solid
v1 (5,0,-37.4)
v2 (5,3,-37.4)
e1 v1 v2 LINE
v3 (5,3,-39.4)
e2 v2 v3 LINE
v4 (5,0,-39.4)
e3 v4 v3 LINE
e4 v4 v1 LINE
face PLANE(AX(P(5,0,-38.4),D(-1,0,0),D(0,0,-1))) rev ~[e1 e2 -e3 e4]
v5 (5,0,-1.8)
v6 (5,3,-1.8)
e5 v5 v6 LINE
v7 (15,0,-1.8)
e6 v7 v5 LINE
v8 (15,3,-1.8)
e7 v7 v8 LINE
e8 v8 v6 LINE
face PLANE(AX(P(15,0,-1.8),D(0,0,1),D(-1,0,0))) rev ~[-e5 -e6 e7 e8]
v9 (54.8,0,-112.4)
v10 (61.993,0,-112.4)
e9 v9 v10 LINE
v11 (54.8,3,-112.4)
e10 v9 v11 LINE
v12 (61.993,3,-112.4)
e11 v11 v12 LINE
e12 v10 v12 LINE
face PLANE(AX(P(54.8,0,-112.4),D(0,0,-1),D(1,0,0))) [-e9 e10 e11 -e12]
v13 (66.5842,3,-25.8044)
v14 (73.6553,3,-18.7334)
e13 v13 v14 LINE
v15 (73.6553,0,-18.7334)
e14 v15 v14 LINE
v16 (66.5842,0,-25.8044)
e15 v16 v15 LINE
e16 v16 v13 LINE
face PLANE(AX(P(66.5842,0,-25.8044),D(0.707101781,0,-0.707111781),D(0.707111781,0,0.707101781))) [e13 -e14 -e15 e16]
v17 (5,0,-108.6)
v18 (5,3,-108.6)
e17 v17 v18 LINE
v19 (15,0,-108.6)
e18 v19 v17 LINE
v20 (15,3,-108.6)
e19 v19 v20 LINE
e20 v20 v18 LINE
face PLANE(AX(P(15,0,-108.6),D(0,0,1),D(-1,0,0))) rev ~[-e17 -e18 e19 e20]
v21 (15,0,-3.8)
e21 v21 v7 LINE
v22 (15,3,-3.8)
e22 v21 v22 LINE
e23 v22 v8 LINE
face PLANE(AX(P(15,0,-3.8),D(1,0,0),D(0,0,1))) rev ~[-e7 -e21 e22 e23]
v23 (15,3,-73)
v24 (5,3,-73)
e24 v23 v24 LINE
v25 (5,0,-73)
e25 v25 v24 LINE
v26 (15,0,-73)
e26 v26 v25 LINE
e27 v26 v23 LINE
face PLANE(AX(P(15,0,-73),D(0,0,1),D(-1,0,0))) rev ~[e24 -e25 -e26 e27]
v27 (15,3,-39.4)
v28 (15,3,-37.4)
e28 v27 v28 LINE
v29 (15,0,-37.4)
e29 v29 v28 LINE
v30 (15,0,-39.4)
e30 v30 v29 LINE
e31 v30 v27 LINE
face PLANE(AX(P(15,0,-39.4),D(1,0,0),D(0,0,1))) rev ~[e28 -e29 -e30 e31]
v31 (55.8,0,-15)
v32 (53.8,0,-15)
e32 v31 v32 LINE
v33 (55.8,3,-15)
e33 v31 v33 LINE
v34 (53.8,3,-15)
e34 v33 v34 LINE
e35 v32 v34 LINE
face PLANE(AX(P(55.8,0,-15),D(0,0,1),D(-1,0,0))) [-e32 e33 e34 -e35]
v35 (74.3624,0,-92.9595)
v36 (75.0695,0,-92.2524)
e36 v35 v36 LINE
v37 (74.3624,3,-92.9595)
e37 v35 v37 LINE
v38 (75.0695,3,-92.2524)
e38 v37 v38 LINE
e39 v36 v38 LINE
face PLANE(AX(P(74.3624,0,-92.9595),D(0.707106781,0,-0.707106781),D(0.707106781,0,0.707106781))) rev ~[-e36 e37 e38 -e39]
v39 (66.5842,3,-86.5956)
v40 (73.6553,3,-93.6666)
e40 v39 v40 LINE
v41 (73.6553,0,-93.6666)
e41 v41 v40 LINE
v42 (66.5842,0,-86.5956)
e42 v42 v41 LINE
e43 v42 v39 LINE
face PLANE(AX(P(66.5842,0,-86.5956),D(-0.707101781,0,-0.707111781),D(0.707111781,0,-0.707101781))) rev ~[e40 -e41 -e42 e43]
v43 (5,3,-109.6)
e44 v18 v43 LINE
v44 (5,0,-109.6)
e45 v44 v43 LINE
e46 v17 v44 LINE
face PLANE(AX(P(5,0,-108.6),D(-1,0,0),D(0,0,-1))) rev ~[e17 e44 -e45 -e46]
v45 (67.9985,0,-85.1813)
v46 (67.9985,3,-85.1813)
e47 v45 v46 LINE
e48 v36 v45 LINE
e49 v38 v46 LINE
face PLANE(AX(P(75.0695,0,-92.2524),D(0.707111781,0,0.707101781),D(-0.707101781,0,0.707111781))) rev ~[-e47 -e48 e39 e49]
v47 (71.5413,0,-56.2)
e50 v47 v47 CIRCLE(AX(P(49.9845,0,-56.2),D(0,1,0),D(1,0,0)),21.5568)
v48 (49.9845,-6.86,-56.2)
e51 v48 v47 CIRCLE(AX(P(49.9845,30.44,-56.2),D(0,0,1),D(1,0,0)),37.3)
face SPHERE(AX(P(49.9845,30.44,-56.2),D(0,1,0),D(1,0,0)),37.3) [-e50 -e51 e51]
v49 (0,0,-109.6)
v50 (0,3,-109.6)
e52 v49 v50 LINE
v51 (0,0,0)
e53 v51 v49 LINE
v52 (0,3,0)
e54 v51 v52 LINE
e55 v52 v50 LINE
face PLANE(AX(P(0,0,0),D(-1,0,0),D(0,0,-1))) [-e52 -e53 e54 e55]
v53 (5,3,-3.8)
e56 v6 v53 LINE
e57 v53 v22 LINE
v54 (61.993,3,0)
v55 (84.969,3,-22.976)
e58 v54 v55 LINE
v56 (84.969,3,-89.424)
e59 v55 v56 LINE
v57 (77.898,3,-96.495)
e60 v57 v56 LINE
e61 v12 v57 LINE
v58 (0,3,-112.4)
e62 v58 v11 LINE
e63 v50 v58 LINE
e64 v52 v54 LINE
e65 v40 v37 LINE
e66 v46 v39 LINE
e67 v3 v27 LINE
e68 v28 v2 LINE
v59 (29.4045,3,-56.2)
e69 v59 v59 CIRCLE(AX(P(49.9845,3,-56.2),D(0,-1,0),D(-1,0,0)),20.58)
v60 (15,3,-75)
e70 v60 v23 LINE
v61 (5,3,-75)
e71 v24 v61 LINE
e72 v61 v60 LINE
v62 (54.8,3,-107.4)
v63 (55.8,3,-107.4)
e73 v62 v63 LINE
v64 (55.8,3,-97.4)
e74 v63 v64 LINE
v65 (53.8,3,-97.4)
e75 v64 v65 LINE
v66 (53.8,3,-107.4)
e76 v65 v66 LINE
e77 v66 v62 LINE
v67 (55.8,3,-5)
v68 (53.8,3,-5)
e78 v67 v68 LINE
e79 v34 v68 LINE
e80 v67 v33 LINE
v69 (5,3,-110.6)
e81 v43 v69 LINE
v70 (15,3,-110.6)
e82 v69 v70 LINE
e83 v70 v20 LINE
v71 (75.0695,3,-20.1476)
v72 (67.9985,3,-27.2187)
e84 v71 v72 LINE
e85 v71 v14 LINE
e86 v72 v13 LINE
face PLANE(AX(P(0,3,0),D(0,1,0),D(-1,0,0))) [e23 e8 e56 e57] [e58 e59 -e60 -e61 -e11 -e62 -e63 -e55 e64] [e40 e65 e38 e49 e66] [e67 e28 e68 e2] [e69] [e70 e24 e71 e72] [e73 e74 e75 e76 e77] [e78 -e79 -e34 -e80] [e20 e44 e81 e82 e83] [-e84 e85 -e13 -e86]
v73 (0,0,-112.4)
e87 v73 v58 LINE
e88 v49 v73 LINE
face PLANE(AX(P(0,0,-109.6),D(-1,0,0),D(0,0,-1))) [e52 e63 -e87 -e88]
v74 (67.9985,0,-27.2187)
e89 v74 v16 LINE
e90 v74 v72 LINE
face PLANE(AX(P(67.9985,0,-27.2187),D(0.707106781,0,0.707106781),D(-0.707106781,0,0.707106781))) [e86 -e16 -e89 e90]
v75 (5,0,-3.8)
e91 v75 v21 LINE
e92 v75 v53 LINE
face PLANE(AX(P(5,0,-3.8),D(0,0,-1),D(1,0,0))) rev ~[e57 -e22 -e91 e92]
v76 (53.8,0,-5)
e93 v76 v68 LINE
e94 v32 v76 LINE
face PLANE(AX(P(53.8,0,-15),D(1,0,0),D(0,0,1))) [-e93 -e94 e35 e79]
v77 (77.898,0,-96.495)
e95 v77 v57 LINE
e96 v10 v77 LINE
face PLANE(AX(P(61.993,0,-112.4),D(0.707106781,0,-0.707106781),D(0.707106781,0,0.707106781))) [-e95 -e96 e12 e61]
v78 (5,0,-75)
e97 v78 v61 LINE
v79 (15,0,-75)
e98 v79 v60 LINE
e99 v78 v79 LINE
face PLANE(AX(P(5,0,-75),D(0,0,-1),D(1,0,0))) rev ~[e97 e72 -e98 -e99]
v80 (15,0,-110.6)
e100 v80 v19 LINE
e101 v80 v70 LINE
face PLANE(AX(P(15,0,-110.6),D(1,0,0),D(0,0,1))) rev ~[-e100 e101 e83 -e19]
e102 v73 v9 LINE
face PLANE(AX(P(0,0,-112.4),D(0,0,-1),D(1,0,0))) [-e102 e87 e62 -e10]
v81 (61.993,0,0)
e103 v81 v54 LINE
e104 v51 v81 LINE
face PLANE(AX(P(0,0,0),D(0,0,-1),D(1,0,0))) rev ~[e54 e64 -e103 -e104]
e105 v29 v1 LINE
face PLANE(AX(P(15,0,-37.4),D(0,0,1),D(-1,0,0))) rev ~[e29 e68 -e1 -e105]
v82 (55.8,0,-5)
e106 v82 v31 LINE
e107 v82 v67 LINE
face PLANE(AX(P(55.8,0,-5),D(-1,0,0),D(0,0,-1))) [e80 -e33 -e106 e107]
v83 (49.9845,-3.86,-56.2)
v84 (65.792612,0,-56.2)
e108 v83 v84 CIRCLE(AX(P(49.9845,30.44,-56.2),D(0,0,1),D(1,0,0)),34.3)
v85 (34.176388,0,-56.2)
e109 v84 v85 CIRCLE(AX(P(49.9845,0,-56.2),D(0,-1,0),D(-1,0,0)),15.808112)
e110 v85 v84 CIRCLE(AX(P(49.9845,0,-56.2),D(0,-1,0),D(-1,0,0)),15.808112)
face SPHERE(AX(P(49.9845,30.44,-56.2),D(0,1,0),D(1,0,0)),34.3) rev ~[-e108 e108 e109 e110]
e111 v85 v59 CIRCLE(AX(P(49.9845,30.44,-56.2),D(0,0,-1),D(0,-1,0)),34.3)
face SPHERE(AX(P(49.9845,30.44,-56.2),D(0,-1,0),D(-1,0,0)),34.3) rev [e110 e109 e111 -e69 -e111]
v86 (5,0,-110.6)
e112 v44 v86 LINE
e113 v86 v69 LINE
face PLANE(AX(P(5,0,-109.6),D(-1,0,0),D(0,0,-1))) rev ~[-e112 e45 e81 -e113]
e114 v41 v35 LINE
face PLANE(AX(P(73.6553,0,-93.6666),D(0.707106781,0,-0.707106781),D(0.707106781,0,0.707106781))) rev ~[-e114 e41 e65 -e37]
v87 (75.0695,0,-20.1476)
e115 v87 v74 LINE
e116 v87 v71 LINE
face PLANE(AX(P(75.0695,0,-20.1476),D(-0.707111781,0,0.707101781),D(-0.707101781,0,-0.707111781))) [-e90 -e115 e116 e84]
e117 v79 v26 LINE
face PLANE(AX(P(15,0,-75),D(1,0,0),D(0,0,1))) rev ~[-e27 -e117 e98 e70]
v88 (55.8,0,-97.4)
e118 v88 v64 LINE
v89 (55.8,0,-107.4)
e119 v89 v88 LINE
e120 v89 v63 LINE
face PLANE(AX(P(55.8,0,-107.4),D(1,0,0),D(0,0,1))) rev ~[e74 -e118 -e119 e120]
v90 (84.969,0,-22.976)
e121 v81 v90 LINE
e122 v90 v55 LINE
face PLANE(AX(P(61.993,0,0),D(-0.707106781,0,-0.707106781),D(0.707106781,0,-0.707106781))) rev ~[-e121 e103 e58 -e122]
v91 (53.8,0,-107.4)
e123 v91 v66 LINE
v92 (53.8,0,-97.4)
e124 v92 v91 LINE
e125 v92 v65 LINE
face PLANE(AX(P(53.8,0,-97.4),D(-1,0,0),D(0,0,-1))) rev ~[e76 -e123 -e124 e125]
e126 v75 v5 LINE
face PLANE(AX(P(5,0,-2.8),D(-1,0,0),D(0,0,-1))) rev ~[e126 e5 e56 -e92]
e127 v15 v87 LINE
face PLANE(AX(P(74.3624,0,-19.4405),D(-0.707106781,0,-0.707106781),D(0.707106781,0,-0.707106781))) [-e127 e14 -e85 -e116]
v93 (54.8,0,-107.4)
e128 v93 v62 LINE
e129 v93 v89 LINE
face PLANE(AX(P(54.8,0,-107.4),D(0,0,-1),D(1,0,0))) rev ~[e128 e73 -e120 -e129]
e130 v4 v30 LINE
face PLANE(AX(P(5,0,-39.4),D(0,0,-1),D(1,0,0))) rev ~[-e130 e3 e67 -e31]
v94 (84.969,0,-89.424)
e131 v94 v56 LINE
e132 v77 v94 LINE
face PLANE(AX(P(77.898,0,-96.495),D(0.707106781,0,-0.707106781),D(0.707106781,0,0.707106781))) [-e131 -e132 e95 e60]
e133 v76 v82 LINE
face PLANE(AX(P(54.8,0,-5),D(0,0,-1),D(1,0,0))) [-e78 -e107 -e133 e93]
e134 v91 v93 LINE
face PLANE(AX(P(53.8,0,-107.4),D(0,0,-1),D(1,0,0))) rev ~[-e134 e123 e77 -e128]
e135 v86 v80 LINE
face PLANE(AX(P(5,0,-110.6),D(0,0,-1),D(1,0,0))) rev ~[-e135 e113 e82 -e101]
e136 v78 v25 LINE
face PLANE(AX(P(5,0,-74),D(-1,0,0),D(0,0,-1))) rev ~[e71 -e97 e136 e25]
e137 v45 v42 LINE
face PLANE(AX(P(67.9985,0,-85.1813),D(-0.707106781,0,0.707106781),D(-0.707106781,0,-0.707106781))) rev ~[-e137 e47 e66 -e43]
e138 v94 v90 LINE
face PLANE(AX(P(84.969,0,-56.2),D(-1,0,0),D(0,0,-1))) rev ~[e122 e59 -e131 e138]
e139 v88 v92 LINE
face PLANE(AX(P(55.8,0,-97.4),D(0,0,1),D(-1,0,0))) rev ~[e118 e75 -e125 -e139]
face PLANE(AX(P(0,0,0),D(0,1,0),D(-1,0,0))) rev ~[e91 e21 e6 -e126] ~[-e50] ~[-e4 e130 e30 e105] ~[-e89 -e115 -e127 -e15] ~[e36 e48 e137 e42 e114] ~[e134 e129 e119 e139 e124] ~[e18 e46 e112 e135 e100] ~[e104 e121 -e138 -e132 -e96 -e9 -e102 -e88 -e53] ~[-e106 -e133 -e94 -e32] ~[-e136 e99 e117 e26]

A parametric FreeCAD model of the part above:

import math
import FreeCAD as App
import Part
import Sketcher

V = App.Vector


def add_polygon(sketch, points):
    """Adds a closed chain of lines whose ends are joined by coincident constraints."""
    first, n = sketch.GeometryCount, len(points)
    for a, b in zip(points, points[1:] + points[:1]):
        sketch.addGeometry(Part.LineSegment(App.Vector(*a, 0), App.Vector(*b, 0)), False)
    for i in range(n):
        sketch.addConstraint(Sketcher.Constraint("Coincident", first + i, 2, first + (i + 1) % n, 1))

doc = App.newDocument("Part")
body = doc.addObject("PartDesign::Body", "Body")

sketch1 = doc.addObject("Sketcher::SketchObject", "Sketch")
body.addObject(sketch1)
sketch1.AttachmentSupport = (doc.XZ_Plane, [""])
sketch1.MapMode = "FlatFace"
add_polygon(sketch1, [(0, -109.6), (0, 0), (62, 0), (85, -23), (85, -89.4), (77.9, -96.5), (62, -112.4), (54.8, -112.4), (0, -112.4)])
add_polygon(sketch1, [(73.7, -93.7), (74.4, -93), (75.1, -92.3), (68, -85.2), (66.6, -86.6)])
add_polygon(sketch1, [(53.8, -107.4), (54.8, -107.4), (55.8, -107.4), (55.8, -97.4), (53.8, -97.4)])
add_polygon(sketch1, [(5, -108.6), (5, -109.6), (5, -110.6), (15, -110.6), (15, -108.6)])
add_polygon(sketch1, [(5, -75), (15, -75), (15, -73), (5, -73)])
add_polygon(sketch1, [(75.1, -20.1), (73.7, -18.7), (66.6, -25.8), (68, -27.2)])
add_polygon(sketch1, [(55.8, -5), (53.8, -5), (53.8, -15), (55.8, -15)])
add_polygon(sketch1, [(5, -39.4), (15, -39.4), (15, -37.4), (5, -37.4)])
add_polygon(sketch1, [(5, -3.8), (15, -3.8), (15, -1.8), (5, -1.8)])
sketch1.addConstraint(Sketcher.Constraint("Vertical", 0))
sketch1.addConstraint(Sketcher.Constraint("Horizontal", 1))
sketch1.addConstraint(Sketcher.Constraint("Vertical", 3))
sketch1.addConstraint(Sketcher.Constraint("Horizontal", 6))
sketch1.addConstraint(Sketcher.Constraint("Horizontal", 7))
sketch1.addConstraint(Sketcher.Constraint("Vertical", 8))
sketch1.addConstraint(Sketcher.Constraint("Horizontal", 14))
sketch1.addConstraint(Sketcher.Constraint("Horizontal", 15))
sketch1.addConstraint(Sketcher.Constraint("Vertical", 16))
sketch1.addConstraint(Sketcher.Constraint("Horizontal", 17))
sketch1.addConstraint(Sketcher.Constraint("Vertical", 18))
sketch1.addConstraint(Sketcher.Constraint("Vertical", 19))
sketch1.addConstraint(Sketcher.Constraint("Vertical", 20))
sketch1.addConstraint(Sketcher.Constraint("Horizontal", 21))
sketch1.addConstraint(Sketcher.Constraint("Vertical", 22))
sketch1.addConstraint(Sketcher.Constraint("Horizontal", 23))
sketch1.addConstraint(Sketcher.Constraint("Horizontal", 24))
sketch1.addConstraint(Sketcher.Constraint("Vertical", 25))
sketch1.addConstraint(Sketcher.Constraint("Horizontal", 26))
sketch1.addConstraint(Sketcher.Constraint("Vertical", 27))
sketch1.addConstraint(Sketcher.Constraint("Horizontal", 32))
sketch1.addConstraint(Sketcher.Constraint("Vertical", 33))
sketch1.addConstraint(Sketcher.Constraint("Horizontal", 34))
sketch1.addConstraint(Sketcher.Constraint("Vertical", 35))
sketch1.addConstraint(Sketcher.Constraint("Horizontal", 36))
sketch1.addConstraint(Sketcher.Constraint("Vertical", 37))
sketch1.addConstraint(Sketcher.Constraint("Horizontal", 38))
sketch1.addConstraint(Sketcher.Constraint("Vertical", 39))
sketch1.addConstraint(Sketcher.Constraint("Horizontal", 40))
sketch1.addConstraint(Sketcher.Constraint("Vertical", 41))
sketch1.addConstraint(Sketcher.Constraint("Horizontal", 42))
sketch1.addConstraint(Sketcher.Constraint("Vertical", 43))
sketch1.addConstraint(Sketcher.Constraint("Coincident", 0, 2, -1, 1))
sketch1.addConstraint(Sketcher.Constraint("Perpendicular", 2, 4))
sketch1.addConstraint(Sketcher.Constraint("Parallel", 4, 5))
sketch1.addConstraint(Sketcher.Constraint("Parallel", 5, 9))
sketch1.addConstraint(Sketcher.Constraint("Parallel", 9, 10))
sketch1.addConstraint(Sketcher.Constraint("Perpendicular", 10, 11))
sketch1.addConstraint(Sketcher.Constraint("Perpendicular", 11, 12))
sketch1.addConstraint(Sketcher.Constraint("Perpendicular", 12, 13))
sketch1.addConstraint(Sketcher.Constraint("Parallel", 13, 28))
sketch1.addConstraint(Sketcher.Constraint("Perpendicular", 28, 29))
sketch1.addConstraint(Sketcher.Constraint("Perpendicular", 29, 30))
sketch1.addConstraint(Sketcher.Constraint("Perpendicular", 30, 31))
sketch1.addConstraint(Sketcher.Constraint("Horizontal", 8, 2, 19, 2))
sketch1.addConstraint(Sketcher.Constraint("Vertical", 1, 2, 5, 2))
sketch1.addConstraint(Sketcher.Constraint("Vertical", 6, 2, 14, 2))
sketch1.addConstraint(Sketcher.Constraint("Vertical", 22, 2, 24, 2))
sketch1.addConstraint(Sketcher.Constraint("Vertical", 23, 2, 26, 2))
sketch1.addConstraint(Sketcher.Constraint("Vertical", 13, 2, 28, 2))
sketch1.addConstraint(Sketcher.Constraint("Vertical", 12, 2, 29, 2))
sketch1.addConstraint(Sketcher.Constraint("Vertical", 11, 2, 30, 2))
sketch1.addConstraint(Sketcher.Constraint("Vertical", 18, 2, 32, 2))
sketch1.addConstraint(Sketcher.Constraint("Vertical", 16, 2, 34, 2))
sketch1.addConstraint(Sketcher.Constraint("Vertical", 25, 2, 36, 2))
sketch1.addConstraint(Sketcher.Constraint("Vertical", 27, 2, 38, 2))
sketch1.addConstraint(Sketcher.Constraint("Vertical", 37, 2, 40, 2))
sketch1.addConstraint(Sketcher.Constraint("Vertical", 39, 2, 42, 2))
sketch1.addConstraint(Sketcher.Constraint("Equal", 14, 15))
sketch1.addConstraint(Sketcher.Constraint("Equal", 42, 16))
sketch1.addConstraint(Sketcher.Constraint("Equal", 15, 19))
sketch1.addConstraint(Sketcher.Constraint("Equal", 19, 20))
sketch1.addConstraint(Sketcher.Constraint("Equal", 22, 25))
sketch1.addConstraint(Sketcher.Constraint("Equal", 18, 33))
sketch1.addConstraint(Sketcher.Constraint("Equal", 27, 37))
sketch1.addConstraint(Sketcher.Constraint("Equal", 39, 41))
sketch1.addConstraint(Sketcher.Constraint("Equal", 9, 10))
sketch1.addConstraint(Sketcher.Constraint("Equal", 4, 11))
sketch1.addConstraint(Sketcher.Constraint("Equal", 12, 28))
sketch1.addConstraint(Sketcher.Constraint("DistanceX", 14, 1, 14, 2, 1.0))
sketch1.addConstraint(Sketcher.Constraint("DistanceX", 21, 1, 21, 2, 10.0))
sketch1.addConstraint(Sketcher.Constraint("Distance", 4, 10.0))
sketch1.addConstraint(Sketcher.Constraint("Distance", 9, 1.0))
sketch1.addConstraint(Sketcher.Constraint("DistanceY", 8, 1, 8, 2, 2.8))
sketch1.addConstraint(Sketcher.Constraint("DistanceX", -1, 1, 19, 2, 5.0))
sketch1.addConstraint(Sketcher.Constraint("DistanceY", 32, 2, -1, 1, 5.0))
sketch1.addConstraint(Sketcher.Constraint("DistanceY", 6, 2, 14, 2, 5.0))
sketch1.addConstraint(Sketcher.Constraint("DistanceY", 5, 2, -1, 1, 112.4))
sketch1.addConstraint(Sketcher.Constraint("DistanceY", 21, 2, 24, 2, 35.6))
sketch1.addConstraint(Sketcher.Constraint("DistanceY", 24, 2, 36, 2, 35.6))
sketch1.addConstraint(Sketcher.Constraint("DistanceY", 36, 2, 40, 2, 35.6))
sketch1.addConstraint(Sketcher.Constraint("DistanceX", 1, 1, 1, 2, 61.993))
sketch1.addConstraint(Sketcher.Constraint("DistanceX", 6, 2, 6, 1, 7.193))
sketch1.addConstraint(Sketcher.Constraint("Distance", 2, 32.493))
sketch1.addConstraint(Sketcher.Constraint("DistanceY", 11, 2, 28, 2, 66.448))
sketch1.addConstraint(Sketcher.Constraint("DistanceX", -1, 1, 9, 2, 74.3624))
sketch1.addConstraint(Sketcher.Constraint("DistanceY", 9, 2, -1, 1, 92.9595))
pad1 = doc.addObject("PartDesign::Pad", "Pad")
body.addObject(pad1)
pad1.Profile = sketch1
pad1.Length = 3
pad1.Reversed = True

sketch2 = doc.addObject("Sketcher::SketchObject", "Sketch001")
body.addObject(sketch2)
sketch2.AttachmentSupport = (doc.XY_Plane, [""])
sketch2.MapMode = "FlatFace"
sketch2.AttachmentOffset = App.Placement(V(0, 0, -56.2), App.Rotation())
sketch2.addGeometry(Part.LineSegment(V(50, -4, 0), V(50, 65, 0)), False)
sketch2.addGeometry(Part.ArcOfCircle(Part.Circle(V(50, 30, 0), V(0, 0, 1), 34), math.radians(90), math.radians(270)), False)
sketch2.addGeometry(Part.LineSegment(V(50, -4, 0), V(50, 65, 0)), True)
sketch2.addConstraint(Sketcher.Constraint("Coincident", 0, 1, 1, 2))
sketch2.addConstraint(Sketcher.Constraint("Coincident", 1, 1, 0, 2))
sketch2.addConstraint(Sketcher.Constraint("Vertical", 0))
sketch2.addConstraint(Sketcher.Constraint("Vertical", 2))
sketch2.addConstraint(Sketcher.Constraint("Coincident", 2, 1, 0, 1))
sketch2.addConstraint(Sketcher.Constraint("Vertical", 1, 3, 0, 1))
sketch2.addConstraint(Sketcher.Constraint("Equal", 0, 2))
sketch2.addConstraint(Sketcher.Constraint("Radius", 1, 34.3))
sketch2.addConstraint(Sketcher.Constraint("DistanceY", -1, 1, 1, 3, 30.44))
sketch2.addConstraint(Sketcher.Constraint("DistanceX", -1, 1, 1, 3, 49.9845))
groove = doc.addObject("PartDesign::Groove", "Groove")
body.addObject(groove)
groove.Profile = sketch2
groove.ReferenceAxis = (sketch2, ["Axis0"])
groove.Angle = 360

sketch3 = doc.addObject("Sketcher::SketchObject", "Sketch002")
body.addObject(sketch3)
sketch3.AttachmentSupport = (doc.XY_Plane, [""])
sketch3.MapMode = "FlatFace"
sketch3.AttachmentOffset = App.Placement(V(0, 0, -56.2), App.Rotation())
sketch3.addGeometry(Part.ArcOfCircle(Part.Circle(V(50, 30.4, 0), V(0, 0, 1), 34.3), math.radians(-90), math.radians(-63)), False)
sketch3.addGeometry(Part.LineSegment(V(50, -3.9, 0), V(50, -6.9, 0)), False)
sketch3.addGeometry(Part.ArcOfCircle(Part.Circle(V(50, 30.4, 0), V(0, 0, 1), 37.3), math.radians(-90), math.radians(-55)), False)
sketch3.addGeometry(Part.LineSegment(V(71.5, 0, 0), V(65.8, 0, 0)), False)
sketch3.addGeometry(Part.LineSegment(V(50, -6.9, 0), V(50, 30.4, 0)), True)
sketch3.addConstraint(Sketcher.Constraint("Coincident", 0, 1, 1, 1))
sketch3.addConstraint(Sketcher.Constraint("Coincident", 1, 2, 2, 1))
sketch3.addConstraint(Sketcher.Constraint("Coincident", 2, 2, 3, 1))
sketch3.addConstraint(Sketcher.Constraint("Coincident", 3, 2, 0, 2))
sketch3.addConstraint(Sketcher.Constraint("Vertical", 1))
sketch3.addConstraint(Sketcher.Constraint("Horizontal", 3))
sketch3.addConstraint(Sketcher.Constraint("Vertical", 4))
sketch3.addConstraint(Sketcher.Constraint("Coincident", 2, 3, 0, 3))
sketch3.addConstraint(Sketcher.Constraint("Coincident", 4, 1, 1, 2))
sketch3.addConstraint(Sketcher.Constraint("Coincident", 4, 2, 0, 3))
sketch3.addConstraint(Sketcher.Constraint("PointOnObject", 2, 2, -1))
sketch3.addConstraint(Sketcher.Constraint("Radius", 0, 34.3))
sketch3.addConstraint(Sketcher.Constraint("DistanceY", 1, 2, 1, 1, 3.0))
sketch3.addConstraint(Sketcher.Constraint("DistanceY", -1, 1, 0, 3, 30.44))
sketch3.addConstraint(Sketcher.Constraint("DistanceX", -1, 1, 0, 3, 49.9845))
revolution = doc.addObject("PartDesign::Revolution", "Revolution")
body.addObject(revolution)
revolution.Profile = sketch3
revolution.ReferenceAxis = (sketch3, ["Axis0"])
revolution.Angle = 360

doc.recompute()
